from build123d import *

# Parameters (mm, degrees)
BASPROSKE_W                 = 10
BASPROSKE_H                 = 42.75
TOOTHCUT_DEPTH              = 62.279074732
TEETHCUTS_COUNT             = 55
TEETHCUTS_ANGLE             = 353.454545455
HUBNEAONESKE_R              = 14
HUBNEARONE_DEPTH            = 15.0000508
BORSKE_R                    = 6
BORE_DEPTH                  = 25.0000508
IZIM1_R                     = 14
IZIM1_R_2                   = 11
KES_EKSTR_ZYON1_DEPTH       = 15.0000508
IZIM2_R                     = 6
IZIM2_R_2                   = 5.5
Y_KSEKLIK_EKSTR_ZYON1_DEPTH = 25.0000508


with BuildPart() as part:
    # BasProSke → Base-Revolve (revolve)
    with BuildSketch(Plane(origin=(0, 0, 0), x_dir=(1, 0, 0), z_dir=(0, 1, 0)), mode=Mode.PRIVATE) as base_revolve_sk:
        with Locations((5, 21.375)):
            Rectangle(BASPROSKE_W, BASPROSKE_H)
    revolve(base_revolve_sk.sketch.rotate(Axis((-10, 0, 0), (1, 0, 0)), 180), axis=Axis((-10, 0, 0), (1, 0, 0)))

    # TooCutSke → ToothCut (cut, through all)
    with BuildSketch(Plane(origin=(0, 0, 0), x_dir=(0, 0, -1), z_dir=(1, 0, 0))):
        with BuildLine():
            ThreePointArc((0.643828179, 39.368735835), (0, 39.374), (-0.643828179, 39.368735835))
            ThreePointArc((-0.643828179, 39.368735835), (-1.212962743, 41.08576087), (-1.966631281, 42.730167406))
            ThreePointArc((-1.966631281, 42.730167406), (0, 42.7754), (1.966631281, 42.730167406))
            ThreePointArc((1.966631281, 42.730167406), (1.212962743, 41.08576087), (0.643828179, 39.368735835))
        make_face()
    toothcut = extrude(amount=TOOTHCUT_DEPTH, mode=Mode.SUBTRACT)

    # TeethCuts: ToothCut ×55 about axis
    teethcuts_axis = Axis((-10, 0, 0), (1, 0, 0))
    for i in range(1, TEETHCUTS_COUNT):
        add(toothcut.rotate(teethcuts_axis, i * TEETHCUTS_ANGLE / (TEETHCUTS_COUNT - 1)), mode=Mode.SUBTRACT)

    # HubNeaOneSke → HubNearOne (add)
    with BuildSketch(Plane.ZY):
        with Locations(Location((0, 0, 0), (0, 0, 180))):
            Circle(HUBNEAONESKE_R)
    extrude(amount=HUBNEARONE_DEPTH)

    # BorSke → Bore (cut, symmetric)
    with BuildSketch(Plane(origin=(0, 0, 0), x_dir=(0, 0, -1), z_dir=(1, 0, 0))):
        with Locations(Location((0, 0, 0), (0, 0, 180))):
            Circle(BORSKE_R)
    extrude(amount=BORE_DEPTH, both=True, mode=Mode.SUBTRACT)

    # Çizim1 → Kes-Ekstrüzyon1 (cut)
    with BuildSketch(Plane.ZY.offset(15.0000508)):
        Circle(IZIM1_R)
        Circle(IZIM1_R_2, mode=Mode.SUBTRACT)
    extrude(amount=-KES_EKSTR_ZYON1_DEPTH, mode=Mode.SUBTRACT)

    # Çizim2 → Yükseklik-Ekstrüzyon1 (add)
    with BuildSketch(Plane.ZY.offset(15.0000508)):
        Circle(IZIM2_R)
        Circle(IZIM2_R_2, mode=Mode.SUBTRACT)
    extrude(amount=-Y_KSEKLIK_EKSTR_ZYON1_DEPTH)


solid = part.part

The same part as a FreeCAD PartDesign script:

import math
import FreeCAD as App
import Part
import Sketcher

V = App.Vector
Q = App.Units.Quantity


def add_polygon(sketch, points):
    """Adds a closed chain of lines whose ends are joined by coincident constraints."""
    first, n = sketch.GeometryCount, len(points)
    for a, b in zip(points, points[1:] + points[:1]):
        sketch.addGeometry(Part.LineSegment(App.Vector(*a, 0), App.Vector(*b, 0)), False)
    for i in range(n):
        sketch.addConstraint(Sketcher.Constraint("Coincident", first + i, 2, first + (i + 1) % n, 1))

doc = App.newDocument("Part")
body = doc.addObject("PartDesign::Body", "Body")

sketch1 = body.newObject("Sketcher::SketchObject", "Sketch")
sketch1.AttachmentSupport = (doc.getObject("XZ_Plane"), [""])
sketch1.MapMode = "FlatFace"
add_polygon(sketch1, [(0, -43), (0, 0), (10, 0), (10, -43)])
sketch1.addConstraint([
    Sketcher.Constraint("Vertical", 0),
    Sketcher.Constraint("Horizontal", 1),
    Sketcher.Constraint("Vertical", 2),
    Sketcher.Constraint("Horizontal", 3),
    Sketcher.Constraint("Coincident", 0, 2, -1, 1),
    Sketcher.Constraint("DistanceX", 1, 1, 1, 2, Q("10 mm")),
    Sketcher.Constraint("DistanceY", 0, 1, 0, 2, Q("42.75 mm")),
])
revolution = body.newObject("PartDesign::Revolution", "Revolution")
revolution.Profile = sketch1
revolution.ReferenceAxis = (sketch1, ["H_Axis"])
revolution.Angle = 360

sketch2 = body.newObject("Sketcher::SketchObject", "Sketch001")
sketch2.AttachmentSupport = (doc.getObject("YZ_Plane"), [""])
sketch2.MapMode = "FlatFace"
sketch2.addGeometry([
    Part.ArcOfCircle(Part.Circle(V(0, 0, 0), V(0, 0, 1), 39.4), math.radians(-0.94), math.radians(0.94)),
    Part.ArcOfCircle(Part.Circle(V(35, -16.6, 0), V(0, 0, 1), 16.5), math.radians(62.23), math.radians(74.8)),
    Part.ArcOfCircle(Part.Circle(V(0, 0, 0), V(0, 0, 1), 42.8), math.radians(-2.64), math.radians(2.64)),
    Part.ArcOfCircle(Part.Circle(V(35, 16.6, 0), V(0, 0, 1), 16.5), math.radians(-74.8), math.radians(-62.23)),
], False)
sketch2.addConstraint([
    Sketcher.Constraint("Coincident", 0, 1, 1, 2),
    Sketcher.Constraint("Coincident", 1, 1, 2, 1),
    Sketcher.Constraint("Coincident", 2, 2, 3, 2),
    Sketcher.Constraint("Coincident", 3, 1, 0, 2),
    Sketcher.Constraint("Coincident", 0, 3, -1, 1),
    Sketcher.Constraint("Coincident", 2, 3, -1, 1),
    Sketcher.Constraint("Equal", 1, 3),
    Sketcher.Constraint("Symmetric", 1, 3, 3, 3, -1),
    Sketcher.Constraint("Radius", 1, Q("16.5 mm")),
    Sketcher.Constraint("Radius", 2, Q("42.7754 mm")),
    Sketcher.Constraint("Radius", 0, Q("39.373997 mm")),
    Sketcher.Constraint("DistanceX", -1, 1, 1, 3, Q("35.043631 mm")),
    Sketcher.Constraint("DistanceY", 0, 1, -1, 1, Q("0.643828 mm")),
])
pocket1 = body.newObject("PartDesign::Pocket", "Pocket")
pocket1.Profile = sketch2
pocket1.Type = "ThroughAll"
pocket1.Reversed = True
doc.recompute()

polarpattern = body.newObject("PartDesign::PolarPattern", "PolarPattern")
polarpattern.Originals = [pocket1]
polarpattern.Axis = (doc.getObject("X_Axis"), [""])
polarpattern.Angle = 360
polarpattern.Occurrences = 55
body.Tip = polarpattern

sketch3 = body.newObject("Sketcher::SketchObject", "Sketch002")
sketch3.AttachmentSupport = (doc.getObject("YZ_Plane"), [""])
sketch3.MapMode = "FlatFace"
sketch3.addGeometry(Part.Circle(V(0, 0, 0), V(0, 0, 1), 14), False)
sketch3.addConstraint([
    Sketcher.Constraint("Coincident", 0, 3, -1, 1),
    Sketcher.Constraint("Diameter", 0, Q("28 mm")),
])
pad1 = body.newObject("PartDesign::Pad", "Pad")
pad1.Profile = sketch3
pad1.Length = 15.000051
pad1.Reversed = True

sketch4 = body.newObject("Sketcher::SketchObject", "Sketch003")
sketch4.AttachmentSupport = (doc.getObject("YZ_Plane"), [""])
sketch4.MapMode = "FlatFace"
sketch4.addGeometry(Part.Circle(V(0, 0, 0), V(0, 0, 1), 6), False)
sketch4.addConstraint([
    Sketcher.Constraint("Coincident", 0, 3, -1, 1),
    Sketcher.Constraint("Diameter", 0, Q("12 mm")),
])
pocket2 = body.newObject("PartDesign::Pocket", "Pocket001")
pocket2.Profile = sketch4
pocket2.Length = 50.000102
pocket2.Midplane = True

sketch5 = body.newObject("Sketcher::SketchObject", "Sketch004")
sketch5.AttachmentSupport = (doc.getObject("YZ_Plane"), [""])
sketch5.MapMode = "FlatFace"
sketch5.AttachmentOffset = App.Placement(V(0, 0, -15.000051), App.Rotation())
sketch5.addGeometry([
    Part.Circle(V(0, 0, 0), V(0, 0, 1), 14),
    Part.Circle(V(0, 0, 0), V(0, 0, 1), 11),
], False)
sketch5.addConstraint([
    Sketcher.Constraint("Coincident", 0, 3, -1, 1),
    Sketcher.Constraint("Coincident", 1, 3, -1, 1),
    Sketcher.Constraint("Diameter", 0, Q("28 mm")),
    Sketcher.Constraint("Diameter", 1, Q("22 mm")),
])
pocket3 = body.newObject("PartDesign::Pocket", "Pocket002")
pocket3.Profile = sketch5
pocket3.Length = 15.000051
pocket3.Reversed = True

sketch6 = body.newObject("Sketcher::SketchObject", "Sketch005")
sketch6.AttachmentSupport = (doc.getObject("YZ_Plane"), [""])
sketch6.MapMode = "FlatFace"
sketch6.AttachmentOffset = App.Placement(V(0, 0, -15.000051), App.Rotation())
sketch6.addGeometry([
    Part.Circle(V(0, 0, 0), V(0, 0, 1), 6),
    Part.Circle(V(0, 0, 0), V(0, 0, 1), 6),
], False)
sketch6.addConstraint([
    Sketcher.Constraint("Coincident", 0, 3, -1, 1),
    Sketcher.Constraint("Coincident", 1, 3, -1, 1),
    Sketcher.Constraint("Diameter", 0, Q("12 mm")),
    Sketcher.Constraint("Diameter", 1, Q("11 mm")),
])
pad2 = body.newObject("PartDesign::Pad", "Pad001")
pad2.Profile = sketch6
pad2.Length = 25.000051

doc.recompute()
